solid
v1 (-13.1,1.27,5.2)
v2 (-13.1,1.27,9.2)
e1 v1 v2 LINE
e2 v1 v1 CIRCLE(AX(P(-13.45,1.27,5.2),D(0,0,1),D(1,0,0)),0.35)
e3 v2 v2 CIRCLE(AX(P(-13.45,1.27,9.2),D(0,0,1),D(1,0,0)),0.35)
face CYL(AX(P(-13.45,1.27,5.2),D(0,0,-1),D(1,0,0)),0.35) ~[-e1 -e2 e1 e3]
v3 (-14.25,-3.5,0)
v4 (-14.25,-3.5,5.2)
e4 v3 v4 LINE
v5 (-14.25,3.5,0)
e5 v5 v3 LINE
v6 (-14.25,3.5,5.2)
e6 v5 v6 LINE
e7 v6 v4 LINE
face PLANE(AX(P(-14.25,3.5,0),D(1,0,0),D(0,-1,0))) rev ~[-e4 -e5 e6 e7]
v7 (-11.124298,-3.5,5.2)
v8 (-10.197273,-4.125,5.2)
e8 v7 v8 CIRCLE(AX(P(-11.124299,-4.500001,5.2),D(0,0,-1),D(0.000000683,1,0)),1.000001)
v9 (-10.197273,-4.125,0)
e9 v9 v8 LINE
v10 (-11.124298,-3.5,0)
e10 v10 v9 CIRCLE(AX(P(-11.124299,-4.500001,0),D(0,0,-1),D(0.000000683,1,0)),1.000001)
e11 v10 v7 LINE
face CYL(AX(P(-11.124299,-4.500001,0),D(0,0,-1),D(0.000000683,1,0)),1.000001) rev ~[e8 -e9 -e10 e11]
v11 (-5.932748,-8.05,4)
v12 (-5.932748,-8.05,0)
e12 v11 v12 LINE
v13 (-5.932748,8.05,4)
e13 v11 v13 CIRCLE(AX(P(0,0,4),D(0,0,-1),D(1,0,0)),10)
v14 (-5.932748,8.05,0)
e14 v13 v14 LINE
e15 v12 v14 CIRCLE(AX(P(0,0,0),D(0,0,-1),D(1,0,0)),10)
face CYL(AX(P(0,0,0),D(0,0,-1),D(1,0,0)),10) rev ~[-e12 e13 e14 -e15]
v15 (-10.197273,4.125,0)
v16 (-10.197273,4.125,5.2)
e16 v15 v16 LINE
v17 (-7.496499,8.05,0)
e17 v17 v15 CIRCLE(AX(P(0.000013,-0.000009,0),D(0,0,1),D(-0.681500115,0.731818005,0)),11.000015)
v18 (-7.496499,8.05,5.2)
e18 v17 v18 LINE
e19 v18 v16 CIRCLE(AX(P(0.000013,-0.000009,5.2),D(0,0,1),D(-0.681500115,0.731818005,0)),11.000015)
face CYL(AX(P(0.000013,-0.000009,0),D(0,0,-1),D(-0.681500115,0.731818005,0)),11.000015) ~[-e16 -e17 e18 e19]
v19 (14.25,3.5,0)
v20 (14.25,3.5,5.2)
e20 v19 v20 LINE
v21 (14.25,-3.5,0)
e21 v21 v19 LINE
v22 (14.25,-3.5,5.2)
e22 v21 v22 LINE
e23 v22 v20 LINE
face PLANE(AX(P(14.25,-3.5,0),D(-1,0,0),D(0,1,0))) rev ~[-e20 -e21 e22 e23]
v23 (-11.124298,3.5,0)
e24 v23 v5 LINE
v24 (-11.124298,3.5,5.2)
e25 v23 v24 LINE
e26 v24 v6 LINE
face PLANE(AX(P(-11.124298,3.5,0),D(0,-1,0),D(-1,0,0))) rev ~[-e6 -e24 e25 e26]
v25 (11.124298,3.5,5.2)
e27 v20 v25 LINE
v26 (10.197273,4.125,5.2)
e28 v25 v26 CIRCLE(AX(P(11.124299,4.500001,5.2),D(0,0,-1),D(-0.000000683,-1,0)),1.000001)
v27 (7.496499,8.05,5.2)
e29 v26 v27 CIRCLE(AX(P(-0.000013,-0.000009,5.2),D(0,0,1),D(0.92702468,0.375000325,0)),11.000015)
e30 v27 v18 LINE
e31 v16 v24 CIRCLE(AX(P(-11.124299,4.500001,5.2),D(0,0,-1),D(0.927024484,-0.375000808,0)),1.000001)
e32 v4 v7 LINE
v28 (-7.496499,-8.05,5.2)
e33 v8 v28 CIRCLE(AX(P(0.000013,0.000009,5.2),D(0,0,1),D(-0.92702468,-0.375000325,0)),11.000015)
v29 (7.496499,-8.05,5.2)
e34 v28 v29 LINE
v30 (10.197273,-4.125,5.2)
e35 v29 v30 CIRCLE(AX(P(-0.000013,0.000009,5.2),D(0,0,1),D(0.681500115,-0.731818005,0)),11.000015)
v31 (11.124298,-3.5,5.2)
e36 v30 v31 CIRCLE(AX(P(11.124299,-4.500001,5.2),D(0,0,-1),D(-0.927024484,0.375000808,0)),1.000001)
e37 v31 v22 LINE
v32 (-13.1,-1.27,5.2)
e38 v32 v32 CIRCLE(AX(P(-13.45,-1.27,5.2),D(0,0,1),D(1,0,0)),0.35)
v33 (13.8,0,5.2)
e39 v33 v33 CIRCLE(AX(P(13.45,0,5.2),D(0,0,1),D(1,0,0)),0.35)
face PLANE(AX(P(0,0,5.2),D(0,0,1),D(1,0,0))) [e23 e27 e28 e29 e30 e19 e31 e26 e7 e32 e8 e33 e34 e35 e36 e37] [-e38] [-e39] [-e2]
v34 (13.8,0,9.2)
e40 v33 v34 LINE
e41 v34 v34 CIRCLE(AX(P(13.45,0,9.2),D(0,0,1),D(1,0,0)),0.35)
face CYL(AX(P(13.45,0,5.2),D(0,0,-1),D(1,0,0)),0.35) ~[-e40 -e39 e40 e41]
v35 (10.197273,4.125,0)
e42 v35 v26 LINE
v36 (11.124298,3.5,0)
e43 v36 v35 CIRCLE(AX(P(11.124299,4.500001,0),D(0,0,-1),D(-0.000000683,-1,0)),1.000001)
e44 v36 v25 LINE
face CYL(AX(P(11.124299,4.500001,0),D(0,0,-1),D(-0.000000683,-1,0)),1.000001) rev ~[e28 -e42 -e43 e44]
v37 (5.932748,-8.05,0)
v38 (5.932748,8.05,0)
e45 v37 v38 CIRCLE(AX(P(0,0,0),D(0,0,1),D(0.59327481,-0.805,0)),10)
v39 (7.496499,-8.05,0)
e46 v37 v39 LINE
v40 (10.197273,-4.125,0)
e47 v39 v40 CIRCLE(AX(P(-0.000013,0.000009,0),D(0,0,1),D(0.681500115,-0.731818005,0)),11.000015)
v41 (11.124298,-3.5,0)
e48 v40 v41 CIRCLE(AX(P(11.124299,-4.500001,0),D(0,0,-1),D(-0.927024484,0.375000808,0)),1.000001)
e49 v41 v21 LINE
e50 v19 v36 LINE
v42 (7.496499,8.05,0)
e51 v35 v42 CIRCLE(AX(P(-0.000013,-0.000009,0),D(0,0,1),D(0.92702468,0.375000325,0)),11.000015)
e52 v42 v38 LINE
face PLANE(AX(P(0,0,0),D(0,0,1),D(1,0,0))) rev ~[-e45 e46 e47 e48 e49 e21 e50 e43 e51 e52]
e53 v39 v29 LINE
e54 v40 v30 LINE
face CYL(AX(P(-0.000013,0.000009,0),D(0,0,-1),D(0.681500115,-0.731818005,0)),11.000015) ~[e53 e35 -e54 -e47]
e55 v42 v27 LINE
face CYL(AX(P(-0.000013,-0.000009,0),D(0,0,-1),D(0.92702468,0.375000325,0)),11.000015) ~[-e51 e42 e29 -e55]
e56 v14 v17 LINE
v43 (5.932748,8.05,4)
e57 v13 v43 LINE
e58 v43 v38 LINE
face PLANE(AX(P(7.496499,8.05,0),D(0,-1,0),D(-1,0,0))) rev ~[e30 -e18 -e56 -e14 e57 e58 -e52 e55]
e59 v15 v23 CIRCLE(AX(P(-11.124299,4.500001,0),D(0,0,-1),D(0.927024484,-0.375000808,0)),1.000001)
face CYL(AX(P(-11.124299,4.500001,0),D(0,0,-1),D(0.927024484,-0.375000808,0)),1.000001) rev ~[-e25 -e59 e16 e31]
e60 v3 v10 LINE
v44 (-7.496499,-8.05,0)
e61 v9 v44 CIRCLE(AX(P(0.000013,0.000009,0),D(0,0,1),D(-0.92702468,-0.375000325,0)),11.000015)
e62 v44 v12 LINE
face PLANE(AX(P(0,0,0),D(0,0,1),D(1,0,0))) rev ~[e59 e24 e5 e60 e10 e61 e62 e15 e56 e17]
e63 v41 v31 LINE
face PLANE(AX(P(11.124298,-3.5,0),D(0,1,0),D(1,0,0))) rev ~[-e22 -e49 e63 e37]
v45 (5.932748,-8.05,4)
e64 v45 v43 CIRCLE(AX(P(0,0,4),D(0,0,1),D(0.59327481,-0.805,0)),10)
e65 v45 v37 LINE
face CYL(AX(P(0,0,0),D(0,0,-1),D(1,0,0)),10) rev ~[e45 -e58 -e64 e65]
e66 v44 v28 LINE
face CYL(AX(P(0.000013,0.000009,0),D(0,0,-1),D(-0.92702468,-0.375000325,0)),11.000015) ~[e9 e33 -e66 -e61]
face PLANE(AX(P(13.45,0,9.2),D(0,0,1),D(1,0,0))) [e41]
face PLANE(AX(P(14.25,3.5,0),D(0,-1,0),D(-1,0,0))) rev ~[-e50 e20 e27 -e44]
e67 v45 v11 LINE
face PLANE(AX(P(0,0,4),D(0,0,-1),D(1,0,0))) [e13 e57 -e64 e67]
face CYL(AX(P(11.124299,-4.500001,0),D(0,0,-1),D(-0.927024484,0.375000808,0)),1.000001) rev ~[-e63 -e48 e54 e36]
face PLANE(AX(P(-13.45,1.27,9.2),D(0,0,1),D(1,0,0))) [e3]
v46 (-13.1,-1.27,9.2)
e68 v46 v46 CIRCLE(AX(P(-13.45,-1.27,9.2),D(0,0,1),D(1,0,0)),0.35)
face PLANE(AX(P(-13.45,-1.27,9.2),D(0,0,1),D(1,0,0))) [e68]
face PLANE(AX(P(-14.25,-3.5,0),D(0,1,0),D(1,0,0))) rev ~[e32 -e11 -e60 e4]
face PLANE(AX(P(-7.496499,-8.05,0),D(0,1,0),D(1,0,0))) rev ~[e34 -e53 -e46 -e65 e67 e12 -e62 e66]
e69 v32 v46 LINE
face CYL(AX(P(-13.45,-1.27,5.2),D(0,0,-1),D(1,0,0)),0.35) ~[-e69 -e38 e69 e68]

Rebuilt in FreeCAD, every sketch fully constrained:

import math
import FreeCAD as App
import Part
import Sketcher

V = App.Vector

doc = App.newDocument("Part")
params = doc.addObject("Spreadsheet::Sheet", "Params")
for row, (alias, value) in enumerate([
    ("sketch1_radius", "1.000001 mm"),
    ("sketch1_height", "7 mm"),
    ("pad1_length", "5.2 mm"),
    ("sketch2_diameter", "20 mm"),
    ("pocket1_length", "4 mm"),
    ("sketch3_diameter", "0.7 mm"),
    ("pad2_length", "4 mm"),
], start=1):
    params.set(f"A{row}", alias)
    params.set(f"B{row}", "=" + value)
    params.setAlias(f"B{row}", alias)

body = doc.addObject("PartDesign::Body", "Body")

# Sketch on XY plane
sketch1 = doc.addObject("Sketcher::SketchObject", "Sketch")
body.addObject(sketch1)
sketch1.AttachmentSupport = (doc.XY_Plane, [""])
sketch1.MapMode = "FlatFace"
sketch1.addGeometry(Part.LineSegment(V(7.5, 8.1, 0), V(-7.5, 8.1, 0)), False)
sketch1.addGeometry(Part.ArcOfCircle(Part.Circle(V(0, 0, 0), V(0, 0, 1), 11), math.radians(133), math.radians(158)), False)
sketch1.addGeometry(Part.ArcOfCircle(Part.Circle(V(-11.1, 4.5, 0), V(0, 0, 1), 1), math.radians(-90), math.radians(-22)), False)
sketch1.addGeometry(Part.LineSegment(V(-11.1, 3.5, 0), V(-14.2, 3.5, 0)), False)
sketch1.addGeometry(Part.LineSegment(V(-14.2, 3.5, 0), V(-14.2, -3.5, 0)), False)
sketch1.addGeometry(Part.LineSegment(V(-14.2, -3.5, 0), V(-11.1, -3.5, 0)), False)
sketch1.addGeometry(Part.ArcOfCircle(Part.Circle(V(-11.1, -4.5, 0), V(0, 0, 1), 1), math.radians(22), math.radians(90)), False)
sketch1.addGeometry(Part.ArcOfCircle(Part.Circle(V(0, 0, 0), V(0, 0, 1), 11), math.radians(-158), math.radians(-133)), False)
sketch1.addGeometry(Part.LineSegment(V(-7.5, -8.1, 0), V(7.5, -8.1, 0)), False)
sketch1.addGeometry(Part.ArcOfCircle(Part.Circle(V(0, 0, 0), V(0, 0, 1), 11), math.radians(-47), math.radians(-22)), False)
sketch1.addGeometry(Part.ArcOfCircle(Part.Circle(V(11.1, -4.5, 0), V(0, 0, 1), 1), math.radians(90), math.radians(158)), False)
sketch1.addGeometry(Part.LineSegment(V(11.1, -3.5, 0), V(14.2, -3.5, 0)), False)
sketch1.addGeometry(Part.LineSegment(V(14.2, -3.5, 0), V(14.2, 3.5, 0)), False)
sketch1.addGeometry(Part.LineSegment(V(14.2, 3.5, 0), V(11.1, 3.5, 0)), False)
sketch1.addGeometry(Part.ArcOfCircle(Part.Circle(V(11.1, 4.5, 0), V(0, 0, 1), 1), math.radians(-158), math.radians(-90)), False)
sketch1.addGeometry(Part.ArcOfCircle(Part.Circle(V(0, 0, 0), V(0, 0, 1), 11), math.radians(22), math.radians(47)), False)
sketch1.addConstraint(Sketcher.Constraint("Coincident", 0, 2, 1, 1))
sketch1.addConstraint(Sketcher.Constraint("Tangent", 1, 2, 2, 2))
sketch1.addConstraint(Sketcher.Constraint("Tangent", 2, 1, 3, 1))
sketch1.addConstraint(Sketcher.Constraint("Coincident", 3, 2, 4, 1))
sketch1.addConstraint(Sketcher.Constraint("Coincident", 4, 2, 5, 1))
sketch1.addConstraint(Sketcher.Constraint("Tangent", 5, 2, 6, 2))
sketch1.addConstraint(Sketcher.Constraint("Tangent", 6, 1, 7, 1))
sketch1.addConstraint(Sketcher.Constraint("Coincident", 7, 2, 8, 1))
sketch1.addConstraint(Sketcher.Constraint("Coincident", 8, 2, 9, 1))
sketch1.addConstraint(Sketcher.Constraint("Tangent", 9, 2, 10, 2))
sketch1.addConstraint(Sketcher.Constraint("Tangent", 10, 1, 11, 1))
sketch1.addConstraint(Sketcher.Constraint("Coincident", 11, 2, 12, 1))
sketch1.addConstraint(Sketcher.Constraint("Coincident", 12, 2, 13, 1))
sketch1.addConstraint(Sketcher.Constraint("Tangent", 13, 2, 14, 2))
sketch1.addConstraint(Sketcher.Constraint("Tangent", 14, 1, 15, 1))
sketch1.addConstraint(Sketcher.Constraint("Coincident", 15, 2, 0, 1))
sketch1.addConstraint(Sketcher.Constraint("Horizontal", 0))
sketch1.addConstraint(Sketcher.Constraint("Horizontal", 3))
sketch1.addConstraint(Sketcher.Constraint("Vertical", 4))
sketch1.addConstraint(Sketcher.Constraint("Horizontal", 5))
sketch1.addConstraint(Sketcher.Constraint("Horizontal", 8))
sketch1.addConstraint(Sketcher.Constraint("Horizontal", 11))
sketch1.addConstraint(Sketcher.Constraint("Vertical", 12))
sketch1.addConstraint(Sketcher.Constraint("Horizontal", 13))
sketch1.addConstraint(Sketcher.Constraint("Equal", 2, 6))
sketch1.addConstraint(Sketcher.Constraint("Equal", 1, 7))
sketch1.addConstraint(Sketcher.Constraint("Equal", 7, 9))
sketch1.addConstraint(Sketcher.Constraint("Equal", 6, 10))
sketch1.addConstraint(Sketcher.Constraint("Equal", 10, 14))
sketch1.addConstraint(Sketcher.Constraint("Equal", 9, 15))
sketch1.addConstraint(Sketcher.Constraint("Symmetric", 1, 3, 9, 3, -1, 1))
sketch1.addConstraint(Sketcher.Constraint("Symmetric", 6, 3, 14, 3, -1, 1))
sketch1.addConstraint(Sketcher.Constraint("Symmetric", 3, 2, 11, 2, -1, 1))
sketch1.addConstraint(Sketcher.Constraint("Symmetric", 7, 2, 15, 2, -1, 1))
sketch1.addConstraint(Sketcher.Constraint("Symmetric", 7, 3, 9, 3, -2))
sketch1.addConstraint(Sketcher.Constraint("Horizontal", 6, 3, 10, 3))
sketch1.addConstraint(Sketcher.Constraint("Radius", 2, 1.000001))
sketch1.addConstraint(Sketcher.Constraint("DistanceY", 4, 2, 4, 1, 7.0))
sketch1.addConstraint(Sketcher.Constraint("DistanceY", -1, 1, 0, 2, 8.05))
sketch1.addConstraint(Sketcher.Constraint("DistanceX", 3, 2, -1, 1, 14.25))
sketch1.addConstraint(Sketcher.Constraint("DistanceY", 6, 1, 1, 2, 8.25))
sketch1.addConstraint(Sketcher.Constraint("Radius", 1, 11.000015))
sketch1.addConstraint(Sketcher.Constraint("DistanceX", 2, 3, -1, 1, 11.124299))
sketch1.setExpression("Constraints[36]", "Params.sketch1_radius")
sketch1.setExpression("Constraints[37]", "Params.sketch1_height")
pad1 = doc.addObject("PartDesign::Pad", "Pad")
body.addObject(pad1)
pad1.Profile = sketch1
pad1.setExpression("Length", "Params.pad1_length")

# Sketch on XY plane
sketch2 = doc.addObject("Sketcher::SketchObject", "Sketch001")
body.addObject(sketch2)
sketch2.AttachmentSupport = (doc.XY_Plane, [""])
sketch2.MapMode = "FlatFace"
sketch2.addGeometry(Part.Circle(V(0, 0, 0), V(0, 0, 1), 10), False)
sketch2.addConstraint(Sketcher.Constraint("Coincident", 0, 3, -1, 1))
sketch2.addConstraint(Sketcher.Constraint("Diameter", 0, 20.0))
sketch2.setExpression("Constraints[1]", "Params.sketch2_diameter")
pocket1 = doc.addObject("PartDesign::Pocket", "Pocket")
body.addObject(pocket1)
pocket1.Profile = sketch2
pocket1.setExpression("Length", "Params.pocket1_length")
pocket1.Reversed = True

# Sketch on XY plane
sketch3 = doc.addObject("Sketcher::SketchObject", "Sketch002")
body.addObject(sketch3)
sketch3.AttachmentSupport = (doc.XY_Plane, [""])
sketch3.MapMode = "FlatFace"
sketch3.AttachmentOffset = App.Placement(V(0, 0, 5.2), App.Rotation())
sketch3.addGeometry(Part.Circle(V(13.45, 0, 0), V(0, 0, 1), 0.35), False)
sketch3.addGeometry(Part.Circle(V(-13.45, 1.27, 0), V(0, 0, 1), 0.35), False)
sketch3.addGeometry(Part.Circle(V(-13.45, -1.27, 0), V(0, 0, 1), 0.35), False)
sketch3.addConstraint(Sketcher.Constraint("Equal", 0, 1))
sketch3.addConstraint(Sketcher.Constraint("Equal", 1, 2))
sketch3.addConstraint(Sketcher.Constraint("Symmetric", 1, 3, 2, 3, -1))
sketch3.addConstraint(Sketcher.Constraint("PointOnObject", 0, 3, -1))
sketch3.addConstraint(Sketcher.Constraint("Diameter", 0, 0.7))
sketch3.addConstraint(Sketcher.Constraint("DistanceX", 1, 3, 0, 3, 26.9))
sketch3.addConstraint(Sketcher.Constraint("DistanceX", -1, 1, 0, 3, 13.45))
sketch3.addConstraint(Sketcher.Constraint("DistanceY", -1, 1, 1, 3, 1.27))
sketch3.setExpression("Constraints[4]", "Params.sketch3_diameter")
pad2 = doc.addObject("PartDesign::Pad", "Pad001")
body.addObject(pad2)
pad2.Profile = sketch3
pad2.setExpression("Length", "Params.pad2_length")

doc.recompute()
